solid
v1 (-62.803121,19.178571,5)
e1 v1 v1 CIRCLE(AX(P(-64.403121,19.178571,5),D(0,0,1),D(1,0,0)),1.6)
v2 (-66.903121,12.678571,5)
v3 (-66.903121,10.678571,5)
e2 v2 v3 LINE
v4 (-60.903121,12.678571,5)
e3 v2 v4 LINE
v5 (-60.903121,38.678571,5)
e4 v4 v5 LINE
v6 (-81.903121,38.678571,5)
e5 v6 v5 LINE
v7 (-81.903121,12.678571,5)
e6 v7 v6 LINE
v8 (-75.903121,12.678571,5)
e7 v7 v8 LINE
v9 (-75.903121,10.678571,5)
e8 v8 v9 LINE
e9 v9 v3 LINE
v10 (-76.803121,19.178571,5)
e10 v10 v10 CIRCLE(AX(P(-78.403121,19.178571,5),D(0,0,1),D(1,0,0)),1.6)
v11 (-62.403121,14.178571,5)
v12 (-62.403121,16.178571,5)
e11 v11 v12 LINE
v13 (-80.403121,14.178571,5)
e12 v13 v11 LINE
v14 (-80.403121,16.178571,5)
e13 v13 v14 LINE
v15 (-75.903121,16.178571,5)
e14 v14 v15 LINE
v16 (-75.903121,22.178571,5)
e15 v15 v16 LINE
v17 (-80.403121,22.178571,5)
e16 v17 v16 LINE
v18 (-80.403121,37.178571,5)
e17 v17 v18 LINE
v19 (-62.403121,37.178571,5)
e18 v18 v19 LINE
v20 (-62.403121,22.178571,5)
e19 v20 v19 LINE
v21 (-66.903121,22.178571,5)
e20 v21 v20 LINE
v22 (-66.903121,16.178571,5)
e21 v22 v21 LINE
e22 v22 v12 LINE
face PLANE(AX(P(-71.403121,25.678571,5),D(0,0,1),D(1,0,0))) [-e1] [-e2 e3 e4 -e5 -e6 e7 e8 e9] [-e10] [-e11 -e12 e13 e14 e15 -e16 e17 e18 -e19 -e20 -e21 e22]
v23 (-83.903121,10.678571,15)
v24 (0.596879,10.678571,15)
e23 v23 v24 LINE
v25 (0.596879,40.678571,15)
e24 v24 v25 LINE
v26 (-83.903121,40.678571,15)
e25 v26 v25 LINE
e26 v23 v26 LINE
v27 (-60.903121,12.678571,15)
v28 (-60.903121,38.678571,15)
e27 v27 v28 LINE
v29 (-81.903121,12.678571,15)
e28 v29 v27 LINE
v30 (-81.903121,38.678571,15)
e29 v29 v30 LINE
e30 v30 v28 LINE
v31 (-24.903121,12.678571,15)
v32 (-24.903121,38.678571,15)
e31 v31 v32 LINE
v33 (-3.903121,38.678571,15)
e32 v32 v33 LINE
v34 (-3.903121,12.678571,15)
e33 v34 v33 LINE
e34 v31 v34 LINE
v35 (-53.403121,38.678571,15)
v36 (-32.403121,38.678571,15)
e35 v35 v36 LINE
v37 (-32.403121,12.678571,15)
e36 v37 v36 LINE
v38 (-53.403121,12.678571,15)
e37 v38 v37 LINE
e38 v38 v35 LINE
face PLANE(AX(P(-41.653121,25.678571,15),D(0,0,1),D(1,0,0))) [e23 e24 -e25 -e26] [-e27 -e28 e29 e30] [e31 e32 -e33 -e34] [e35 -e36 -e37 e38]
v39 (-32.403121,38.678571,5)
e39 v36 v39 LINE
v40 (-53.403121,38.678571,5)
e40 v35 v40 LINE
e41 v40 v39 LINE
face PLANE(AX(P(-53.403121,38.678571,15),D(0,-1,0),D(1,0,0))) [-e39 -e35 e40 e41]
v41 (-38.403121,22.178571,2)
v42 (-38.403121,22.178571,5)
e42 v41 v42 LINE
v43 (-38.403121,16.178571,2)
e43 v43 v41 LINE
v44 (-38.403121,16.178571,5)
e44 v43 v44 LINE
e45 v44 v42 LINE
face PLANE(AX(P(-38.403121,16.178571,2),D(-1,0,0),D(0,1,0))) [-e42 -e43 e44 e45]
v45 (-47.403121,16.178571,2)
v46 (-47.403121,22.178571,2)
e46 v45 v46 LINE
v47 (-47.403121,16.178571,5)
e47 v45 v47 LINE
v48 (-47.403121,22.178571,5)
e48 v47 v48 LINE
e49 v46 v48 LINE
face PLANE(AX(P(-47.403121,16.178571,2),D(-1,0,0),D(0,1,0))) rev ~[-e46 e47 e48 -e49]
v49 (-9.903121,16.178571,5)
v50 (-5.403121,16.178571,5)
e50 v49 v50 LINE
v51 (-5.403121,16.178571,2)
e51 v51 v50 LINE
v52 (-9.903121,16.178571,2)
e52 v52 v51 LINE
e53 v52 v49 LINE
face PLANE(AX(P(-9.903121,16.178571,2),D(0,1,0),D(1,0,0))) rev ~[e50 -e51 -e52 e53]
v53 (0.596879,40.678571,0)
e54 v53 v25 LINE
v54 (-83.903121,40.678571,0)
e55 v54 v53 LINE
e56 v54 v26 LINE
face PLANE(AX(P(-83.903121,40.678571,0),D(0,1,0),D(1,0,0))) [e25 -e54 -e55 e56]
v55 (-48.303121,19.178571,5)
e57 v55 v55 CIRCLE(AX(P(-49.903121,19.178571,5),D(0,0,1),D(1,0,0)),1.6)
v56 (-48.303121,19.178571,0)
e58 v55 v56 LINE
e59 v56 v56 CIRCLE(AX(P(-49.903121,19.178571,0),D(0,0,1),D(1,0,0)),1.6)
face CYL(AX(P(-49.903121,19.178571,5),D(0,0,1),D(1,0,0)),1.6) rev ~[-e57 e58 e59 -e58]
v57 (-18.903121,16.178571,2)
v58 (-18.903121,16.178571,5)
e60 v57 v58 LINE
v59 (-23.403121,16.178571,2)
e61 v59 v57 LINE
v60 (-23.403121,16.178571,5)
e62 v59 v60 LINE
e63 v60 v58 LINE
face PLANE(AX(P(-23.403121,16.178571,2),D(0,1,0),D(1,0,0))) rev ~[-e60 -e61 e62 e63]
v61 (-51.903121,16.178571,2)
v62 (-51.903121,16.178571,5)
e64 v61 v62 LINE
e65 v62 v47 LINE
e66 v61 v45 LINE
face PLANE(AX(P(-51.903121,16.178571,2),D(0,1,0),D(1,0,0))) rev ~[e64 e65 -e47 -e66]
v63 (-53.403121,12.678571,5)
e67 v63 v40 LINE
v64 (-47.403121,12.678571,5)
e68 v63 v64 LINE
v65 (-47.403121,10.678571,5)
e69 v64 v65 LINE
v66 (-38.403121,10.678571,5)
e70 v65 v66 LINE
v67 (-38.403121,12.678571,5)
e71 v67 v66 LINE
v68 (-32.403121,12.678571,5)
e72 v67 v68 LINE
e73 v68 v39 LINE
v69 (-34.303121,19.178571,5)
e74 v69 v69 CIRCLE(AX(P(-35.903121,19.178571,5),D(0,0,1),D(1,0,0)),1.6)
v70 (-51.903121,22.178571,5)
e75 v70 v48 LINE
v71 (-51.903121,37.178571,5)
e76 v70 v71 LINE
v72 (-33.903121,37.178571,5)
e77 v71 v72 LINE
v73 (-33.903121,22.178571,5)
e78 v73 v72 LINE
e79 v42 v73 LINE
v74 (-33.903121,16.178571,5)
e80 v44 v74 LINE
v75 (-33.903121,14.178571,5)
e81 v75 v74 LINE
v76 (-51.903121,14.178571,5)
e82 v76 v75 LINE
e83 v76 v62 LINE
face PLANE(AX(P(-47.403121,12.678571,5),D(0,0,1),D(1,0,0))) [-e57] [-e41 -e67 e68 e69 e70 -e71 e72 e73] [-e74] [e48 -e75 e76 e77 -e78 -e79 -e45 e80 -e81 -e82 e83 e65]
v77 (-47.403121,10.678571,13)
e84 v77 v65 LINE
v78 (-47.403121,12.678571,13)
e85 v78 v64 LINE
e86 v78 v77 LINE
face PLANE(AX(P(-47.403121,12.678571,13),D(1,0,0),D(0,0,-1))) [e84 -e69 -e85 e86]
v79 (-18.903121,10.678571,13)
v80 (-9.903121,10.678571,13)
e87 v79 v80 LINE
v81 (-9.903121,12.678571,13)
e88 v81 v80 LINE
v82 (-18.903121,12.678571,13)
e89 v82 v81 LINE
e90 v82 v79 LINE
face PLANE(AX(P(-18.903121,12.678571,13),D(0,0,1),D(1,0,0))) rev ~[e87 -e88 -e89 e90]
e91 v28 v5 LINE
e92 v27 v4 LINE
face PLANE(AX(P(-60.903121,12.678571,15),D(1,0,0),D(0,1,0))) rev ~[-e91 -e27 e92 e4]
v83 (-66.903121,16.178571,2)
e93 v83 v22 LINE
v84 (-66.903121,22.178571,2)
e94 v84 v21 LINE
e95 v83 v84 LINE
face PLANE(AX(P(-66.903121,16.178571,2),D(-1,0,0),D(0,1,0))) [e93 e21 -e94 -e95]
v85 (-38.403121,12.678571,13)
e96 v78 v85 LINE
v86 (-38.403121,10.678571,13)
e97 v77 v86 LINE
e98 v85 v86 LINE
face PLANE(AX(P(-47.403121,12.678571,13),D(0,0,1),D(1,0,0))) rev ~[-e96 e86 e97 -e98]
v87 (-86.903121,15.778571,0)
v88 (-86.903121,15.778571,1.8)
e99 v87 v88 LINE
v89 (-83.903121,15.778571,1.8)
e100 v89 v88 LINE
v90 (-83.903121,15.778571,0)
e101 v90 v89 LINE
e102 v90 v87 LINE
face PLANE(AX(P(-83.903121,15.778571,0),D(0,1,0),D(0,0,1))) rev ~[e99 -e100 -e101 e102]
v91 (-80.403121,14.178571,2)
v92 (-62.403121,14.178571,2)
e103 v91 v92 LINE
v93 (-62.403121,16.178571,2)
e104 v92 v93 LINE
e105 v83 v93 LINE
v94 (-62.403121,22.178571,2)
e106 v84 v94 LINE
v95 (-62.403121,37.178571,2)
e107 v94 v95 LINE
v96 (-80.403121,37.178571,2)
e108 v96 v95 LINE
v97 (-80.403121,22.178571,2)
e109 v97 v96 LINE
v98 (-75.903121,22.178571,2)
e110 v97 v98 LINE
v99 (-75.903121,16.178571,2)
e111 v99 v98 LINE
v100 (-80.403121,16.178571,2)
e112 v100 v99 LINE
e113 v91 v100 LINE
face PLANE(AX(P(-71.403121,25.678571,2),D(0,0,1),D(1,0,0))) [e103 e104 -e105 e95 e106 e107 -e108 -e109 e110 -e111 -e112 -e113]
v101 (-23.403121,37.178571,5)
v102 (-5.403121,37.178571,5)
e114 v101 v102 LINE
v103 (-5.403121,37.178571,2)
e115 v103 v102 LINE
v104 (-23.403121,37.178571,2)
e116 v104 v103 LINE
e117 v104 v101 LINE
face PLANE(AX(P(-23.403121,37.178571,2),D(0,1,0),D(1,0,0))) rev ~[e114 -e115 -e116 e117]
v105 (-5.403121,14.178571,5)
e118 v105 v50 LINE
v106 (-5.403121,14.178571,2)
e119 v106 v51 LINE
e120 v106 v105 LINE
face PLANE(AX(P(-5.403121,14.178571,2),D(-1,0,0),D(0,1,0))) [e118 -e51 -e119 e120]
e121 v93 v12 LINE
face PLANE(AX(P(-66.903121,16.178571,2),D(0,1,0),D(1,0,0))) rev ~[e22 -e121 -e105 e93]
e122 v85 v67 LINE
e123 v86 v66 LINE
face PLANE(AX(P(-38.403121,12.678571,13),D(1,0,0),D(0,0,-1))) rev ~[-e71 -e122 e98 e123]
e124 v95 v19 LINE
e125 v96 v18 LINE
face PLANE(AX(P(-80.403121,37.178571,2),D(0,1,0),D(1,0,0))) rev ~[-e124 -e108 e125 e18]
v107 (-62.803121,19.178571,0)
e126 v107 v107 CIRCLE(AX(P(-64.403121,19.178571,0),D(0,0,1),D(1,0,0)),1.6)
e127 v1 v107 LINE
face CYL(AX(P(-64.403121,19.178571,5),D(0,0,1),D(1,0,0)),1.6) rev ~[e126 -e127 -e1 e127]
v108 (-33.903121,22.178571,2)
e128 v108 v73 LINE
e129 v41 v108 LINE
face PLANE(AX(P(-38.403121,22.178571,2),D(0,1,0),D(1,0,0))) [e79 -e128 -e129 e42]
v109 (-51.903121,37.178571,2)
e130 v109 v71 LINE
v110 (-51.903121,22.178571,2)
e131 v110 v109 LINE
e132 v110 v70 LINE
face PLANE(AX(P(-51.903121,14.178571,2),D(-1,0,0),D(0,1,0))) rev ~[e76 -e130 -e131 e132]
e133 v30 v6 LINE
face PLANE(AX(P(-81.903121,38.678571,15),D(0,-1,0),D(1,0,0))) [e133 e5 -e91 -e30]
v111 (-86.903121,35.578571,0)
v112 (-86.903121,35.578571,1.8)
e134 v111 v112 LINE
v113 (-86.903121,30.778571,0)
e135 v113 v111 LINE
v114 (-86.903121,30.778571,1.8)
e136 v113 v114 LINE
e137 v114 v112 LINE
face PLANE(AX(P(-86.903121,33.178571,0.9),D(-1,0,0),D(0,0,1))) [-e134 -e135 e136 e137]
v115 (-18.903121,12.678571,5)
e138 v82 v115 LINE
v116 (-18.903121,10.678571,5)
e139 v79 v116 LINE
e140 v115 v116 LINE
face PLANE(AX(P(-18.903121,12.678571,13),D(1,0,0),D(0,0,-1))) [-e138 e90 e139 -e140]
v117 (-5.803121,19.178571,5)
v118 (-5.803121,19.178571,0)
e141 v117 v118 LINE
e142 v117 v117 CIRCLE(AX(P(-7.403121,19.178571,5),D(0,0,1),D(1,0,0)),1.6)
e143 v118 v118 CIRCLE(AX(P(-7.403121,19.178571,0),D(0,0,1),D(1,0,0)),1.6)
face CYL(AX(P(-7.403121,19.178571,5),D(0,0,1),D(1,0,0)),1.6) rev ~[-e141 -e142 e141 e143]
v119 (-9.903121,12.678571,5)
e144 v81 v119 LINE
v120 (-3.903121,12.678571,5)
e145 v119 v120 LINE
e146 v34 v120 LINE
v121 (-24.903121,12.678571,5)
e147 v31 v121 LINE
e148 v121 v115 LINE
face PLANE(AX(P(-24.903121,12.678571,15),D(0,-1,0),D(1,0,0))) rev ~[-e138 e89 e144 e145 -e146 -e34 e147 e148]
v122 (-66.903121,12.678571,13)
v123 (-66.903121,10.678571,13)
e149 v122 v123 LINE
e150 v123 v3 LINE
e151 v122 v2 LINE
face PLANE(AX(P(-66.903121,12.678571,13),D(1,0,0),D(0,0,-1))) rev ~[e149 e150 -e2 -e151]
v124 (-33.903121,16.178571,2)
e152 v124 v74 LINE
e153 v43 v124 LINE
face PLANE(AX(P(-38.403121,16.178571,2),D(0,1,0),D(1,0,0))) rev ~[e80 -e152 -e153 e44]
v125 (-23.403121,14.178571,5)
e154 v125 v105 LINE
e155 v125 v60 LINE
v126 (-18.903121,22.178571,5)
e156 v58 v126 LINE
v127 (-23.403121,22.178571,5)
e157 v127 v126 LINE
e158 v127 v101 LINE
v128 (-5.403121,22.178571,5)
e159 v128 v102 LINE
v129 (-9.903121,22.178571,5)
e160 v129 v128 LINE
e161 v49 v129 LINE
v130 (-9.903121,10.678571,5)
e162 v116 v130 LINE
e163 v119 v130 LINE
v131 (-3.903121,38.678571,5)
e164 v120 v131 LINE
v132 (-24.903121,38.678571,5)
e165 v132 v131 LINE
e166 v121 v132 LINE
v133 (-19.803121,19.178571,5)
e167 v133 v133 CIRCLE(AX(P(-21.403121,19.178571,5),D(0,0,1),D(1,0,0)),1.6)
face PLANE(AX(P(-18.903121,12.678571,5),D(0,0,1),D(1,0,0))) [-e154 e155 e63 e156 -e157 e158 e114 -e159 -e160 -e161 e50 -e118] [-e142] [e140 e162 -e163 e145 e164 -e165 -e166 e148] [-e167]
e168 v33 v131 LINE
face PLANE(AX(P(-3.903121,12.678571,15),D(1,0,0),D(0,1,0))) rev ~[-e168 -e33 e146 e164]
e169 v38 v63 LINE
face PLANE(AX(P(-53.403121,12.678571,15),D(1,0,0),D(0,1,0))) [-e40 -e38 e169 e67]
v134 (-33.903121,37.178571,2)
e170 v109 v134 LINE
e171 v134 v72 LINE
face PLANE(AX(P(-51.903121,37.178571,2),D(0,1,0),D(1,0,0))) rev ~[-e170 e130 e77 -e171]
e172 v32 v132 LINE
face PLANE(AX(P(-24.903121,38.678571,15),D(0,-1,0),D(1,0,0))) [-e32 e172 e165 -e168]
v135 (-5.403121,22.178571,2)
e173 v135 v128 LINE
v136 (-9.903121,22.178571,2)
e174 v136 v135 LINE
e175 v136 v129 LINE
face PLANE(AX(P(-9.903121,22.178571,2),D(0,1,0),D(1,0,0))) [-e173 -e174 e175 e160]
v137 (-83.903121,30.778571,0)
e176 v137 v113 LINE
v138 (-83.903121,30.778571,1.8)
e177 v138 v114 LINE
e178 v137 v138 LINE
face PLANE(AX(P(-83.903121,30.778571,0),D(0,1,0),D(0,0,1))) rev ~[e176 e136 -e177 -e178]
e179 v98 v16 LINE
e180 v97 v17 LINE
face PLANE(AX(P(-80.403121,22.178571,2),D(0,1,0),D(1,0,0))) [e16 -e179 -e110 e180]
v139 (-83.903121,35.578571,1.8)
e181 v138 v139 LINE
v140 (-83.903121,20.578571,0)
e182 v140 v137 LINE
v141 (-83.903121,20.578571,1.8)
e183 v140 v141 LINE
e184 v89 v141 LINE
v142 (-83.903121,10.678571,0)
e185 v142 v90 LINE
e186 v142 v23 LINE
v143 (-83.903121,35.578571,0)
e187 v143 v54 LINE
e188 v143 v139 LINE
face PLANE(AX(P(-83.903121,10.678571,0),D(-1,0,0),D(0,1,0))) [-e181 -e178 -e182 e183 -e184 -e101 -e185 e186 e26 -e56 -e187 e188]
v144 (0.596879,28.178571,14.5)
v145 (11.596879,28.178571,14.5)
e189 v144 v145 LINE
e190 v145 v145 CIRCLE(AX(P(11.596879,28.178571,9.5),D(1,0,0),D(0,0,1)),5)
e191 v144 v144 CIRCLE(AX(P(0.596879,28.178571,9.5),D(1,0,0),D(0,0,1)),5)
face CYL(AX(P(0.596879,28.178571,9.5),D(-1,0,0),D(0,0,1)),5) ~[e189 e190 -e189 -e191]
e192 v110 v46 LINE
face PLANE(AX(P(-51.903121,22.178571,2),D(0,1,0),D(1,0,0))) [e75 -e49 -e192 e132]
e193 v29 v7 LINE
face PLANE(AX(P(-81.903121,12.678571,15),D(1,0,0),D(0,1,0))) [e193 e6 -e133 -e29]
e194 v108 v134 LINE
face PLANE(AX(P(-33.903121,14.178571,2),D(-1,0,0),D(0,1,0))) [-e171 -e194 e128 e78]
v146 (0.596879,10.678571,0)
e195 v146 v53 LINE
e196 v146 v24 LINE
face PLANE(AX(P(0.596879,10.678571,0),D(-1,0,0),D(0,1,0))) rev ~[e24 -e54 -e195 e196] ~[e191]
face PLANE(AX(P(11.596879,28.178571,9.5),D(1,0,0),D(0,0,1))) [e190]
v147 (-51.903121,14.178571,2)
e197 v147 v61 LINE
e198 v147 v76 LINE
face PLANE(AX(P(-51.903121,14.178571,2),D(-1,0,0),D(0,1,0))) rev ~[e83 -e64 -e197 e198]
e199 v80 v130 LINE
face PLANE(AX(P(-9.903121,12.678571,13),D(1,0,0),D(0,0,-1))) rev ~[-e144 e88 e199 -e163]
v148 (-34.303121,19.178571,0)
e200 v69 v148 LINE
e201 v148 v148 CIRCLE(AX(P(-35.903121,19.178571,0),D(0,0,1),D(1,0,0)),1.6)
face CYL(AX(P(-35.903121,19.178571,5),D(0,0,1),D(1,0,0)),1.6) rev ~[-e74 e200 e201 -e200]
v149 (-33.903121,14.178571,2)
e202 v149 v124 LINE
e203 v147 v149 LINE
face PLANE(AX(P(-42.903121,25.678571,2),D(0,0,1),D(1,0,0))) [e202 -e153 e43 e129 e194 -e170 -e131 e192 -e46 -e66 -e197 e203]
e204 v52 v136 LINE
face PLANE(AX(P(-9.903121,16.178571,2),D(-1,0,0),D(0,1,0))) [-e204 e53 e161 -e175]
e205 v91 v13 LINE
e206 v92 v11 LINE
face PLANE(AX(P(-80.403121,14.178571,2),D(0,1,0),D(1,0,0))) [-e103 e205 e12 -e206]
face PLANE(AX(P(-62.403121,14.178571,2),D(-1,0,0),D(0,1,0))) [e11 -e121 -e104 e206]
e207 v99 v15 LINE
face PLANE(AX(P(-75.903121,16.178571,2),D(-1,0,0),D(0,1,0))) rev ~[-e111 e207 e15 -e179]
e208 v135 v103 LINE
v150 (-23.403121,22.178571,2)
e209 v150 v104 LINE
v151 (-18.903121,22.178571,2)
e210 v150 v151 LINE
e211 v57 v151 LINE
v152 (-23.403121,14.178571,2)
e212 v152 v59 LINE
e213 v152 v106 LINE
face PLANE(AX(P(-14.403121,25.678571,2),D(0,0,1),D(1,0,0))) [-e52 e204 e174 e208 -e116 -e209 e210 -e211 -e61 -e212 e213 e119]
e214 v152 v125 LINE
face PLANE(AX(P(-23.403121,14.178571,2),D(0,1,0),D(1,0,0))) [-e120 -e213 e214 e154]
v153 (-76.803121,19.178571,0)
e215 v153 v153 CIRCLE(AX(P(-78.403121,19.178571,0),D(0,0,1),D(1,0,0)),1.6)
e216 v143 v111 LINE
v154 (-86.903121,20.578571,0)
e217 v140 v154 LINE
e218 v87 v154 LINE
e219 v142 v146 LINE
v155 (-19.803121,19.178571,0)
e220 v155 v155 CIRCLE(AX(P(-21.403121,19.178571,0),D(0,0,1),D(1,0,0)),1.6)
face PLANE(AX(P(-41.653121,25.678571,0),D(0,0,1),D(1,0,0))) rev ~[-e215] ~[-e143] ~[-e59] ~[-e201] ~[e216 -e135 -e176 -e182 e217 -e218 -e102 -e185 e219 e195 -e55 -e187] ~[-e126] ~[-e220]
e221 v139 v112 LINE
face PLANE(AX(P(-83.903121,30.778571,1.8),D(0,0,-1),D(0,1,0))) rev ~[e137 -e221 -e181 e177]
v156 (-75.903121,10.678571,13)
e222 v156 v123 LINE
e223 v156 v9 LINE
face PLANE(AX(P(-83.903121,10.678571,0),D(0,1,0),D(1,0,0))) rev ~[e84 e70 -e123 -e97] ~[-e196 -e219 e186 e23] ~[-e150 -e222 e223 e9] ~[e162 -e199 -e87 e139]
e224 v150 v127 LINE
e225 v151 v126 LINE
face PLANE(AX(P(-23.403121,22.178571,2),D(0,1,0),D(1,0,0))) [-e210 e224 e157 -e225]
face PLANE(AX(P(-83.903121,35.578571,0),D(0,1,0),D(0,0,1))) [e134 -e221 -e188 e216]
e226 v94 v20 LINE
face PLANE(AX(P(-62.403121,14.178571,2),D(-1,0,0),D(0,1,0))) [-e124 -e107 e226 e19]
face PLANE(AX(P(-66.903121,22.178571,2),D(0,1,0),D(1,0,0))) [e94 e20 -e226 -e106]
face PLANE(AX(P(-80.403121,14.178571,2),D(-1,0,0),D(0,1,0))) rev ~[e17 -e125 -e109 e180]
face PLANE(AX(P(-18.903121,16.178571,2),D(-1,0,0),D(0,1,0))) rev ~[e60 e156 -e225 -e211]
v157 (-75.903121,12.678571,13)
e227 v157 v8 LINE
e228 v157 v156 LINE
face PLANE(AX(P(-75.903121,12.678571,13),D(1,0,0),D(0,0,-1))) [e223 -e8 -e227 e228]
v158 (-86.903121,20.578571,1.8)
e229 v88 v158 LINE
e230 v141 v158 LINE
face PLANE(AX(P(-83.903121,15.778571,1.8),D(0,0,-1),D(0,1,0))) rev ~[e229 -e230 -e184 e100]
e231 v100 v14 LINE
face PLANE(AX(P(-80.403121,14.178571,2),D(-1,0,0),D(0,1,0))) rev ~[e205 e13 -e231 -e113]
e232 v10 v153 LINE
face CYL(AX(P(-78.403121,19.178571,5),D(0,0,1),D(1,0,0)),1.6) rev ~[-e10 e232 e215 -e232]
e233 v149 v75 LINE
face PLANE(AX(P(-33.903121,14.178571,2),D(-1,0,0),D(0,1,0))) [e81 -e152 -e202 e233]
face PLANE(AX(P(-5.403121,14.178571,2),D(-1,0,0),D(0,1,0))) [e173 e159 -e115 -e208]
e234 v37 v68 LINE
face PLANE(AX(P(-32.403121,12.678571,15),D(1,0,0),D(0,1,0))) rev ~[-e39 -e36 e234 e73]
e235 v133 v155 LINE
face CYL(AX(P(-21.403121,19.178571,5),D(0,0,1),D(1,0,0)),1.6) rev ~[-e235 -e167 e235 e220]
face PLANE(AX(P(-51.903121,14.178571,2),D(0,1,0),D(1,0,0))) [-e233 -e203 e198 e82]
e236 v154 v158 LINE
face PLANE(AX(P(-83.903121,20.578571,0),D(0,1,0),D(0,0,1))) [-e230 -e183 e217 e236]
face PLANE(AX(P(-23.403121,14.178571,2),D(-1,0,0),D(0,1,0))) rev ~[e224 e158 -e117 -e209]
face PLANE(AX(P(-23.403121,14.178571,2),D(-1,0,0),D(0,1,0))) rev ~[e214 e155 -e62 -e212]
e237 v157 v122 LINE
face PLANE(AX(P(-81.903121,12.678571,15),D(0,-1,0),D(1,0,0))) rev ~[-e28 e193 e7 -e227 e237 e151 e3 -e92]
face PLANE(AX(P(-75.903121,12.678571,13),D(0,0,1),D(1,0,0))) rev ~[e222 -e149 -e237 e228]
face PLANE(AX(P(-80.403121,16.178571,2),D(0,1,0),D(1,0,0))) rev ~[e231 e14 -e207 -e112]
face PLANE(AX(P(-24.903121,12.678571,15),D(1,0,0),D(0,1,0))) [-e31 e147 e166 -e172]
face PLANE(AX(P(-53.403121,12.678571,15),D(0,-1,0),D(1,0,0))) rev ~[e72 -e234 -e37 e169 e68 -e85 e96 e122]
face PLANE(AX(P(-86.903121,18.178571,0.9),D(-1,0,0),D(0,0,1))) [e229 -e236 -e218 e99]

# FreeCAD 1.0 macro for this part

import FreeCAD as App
import Part
import Sketcher

doc = App.newDocument("Part")
body = doc.addObject("PartDesign::Body", "Body")

sketch1 = body.newObject("Sketcher::SketchObject", "Sketch")
sketch1.AttachmentSupport = (doc.getObject("XY_Plane"), [""])
sketch1.MapMode = "FlatFace"
sketch1.addGeometry([
    Part.LineSegment(App.Vector(-83.903121, 40.678571, 0), App.Vector(-83.903121, 10.678571, 0)),
    Part.LineSegment(App.Vector(-83.903121, 10.678571, 0), App.Vector(0.596879, 10.678571, 0)),
    Part.LineSegment(App.Vector(0.596879, 10.678571, 0), App.Vector(0.596879, 40.678571, 0)),
    Part.LineSegment(App.Vector(0.596879, 40.678571, 0), App.Vector(-83.903121, 40.678571, 0)),
], False)
sketch1.addConstraint([
    Sketcher.Constraint("Coincident", 0, 2, 1, 1),
    Sketcher.Constraint("Coincident", 1, 2, 2, 1),
    Sketcher.Constraint("Coincident", 2, 2, 3, 1),
    Sketcher.Constraint("Coincident", 3, 2, 0, 1),
    Sketcher.Constraint("Vertical", 0),
    Sketcher.Constraint("Horizontal", 1),
    Sketcher.Constraint("Vertical", 2),
    Sketcher.Constraint("Horizontal", 3),
    Sketcher.Constraint("DistanceY", 0, 2, 0, 1, 30.0),
    Sketcher.Constraint("DistanceX", 1, 1, 1, 2, 84.5),
    Sketcher.Constraint("DistanceX", 0, 2, -1, 1, 83.903121),
    Sketcher.Constraint("DistanceY", -1, 1, 0, 2, 10.678571),
])
pad1 = body.newObject("PartDesign::Pad", "Pad")
pad1.Profile = sketch1
pad1.Length = 15

sketch2 = body.newObject("Sketcher::SketchObject", "Sketch001")
sketch2.AttachmentSupport = (doc.getObject("XY_Plane"), [""])
sketch2.MapMode = "FlatFace"
sketch2.AttachmentOffset = App.Placement(App.Vector(0, 0, 15), App.Rotation())
sketch2.addGeometry([
    Part.LineSegment(App.Vector(-81.903121, 38.678571, 0), App.Vector(-81.903121, 12.678571, 0)),
    Part.LineSegment(App.Vector(-81.903121, 12.678571, 0), App.Vector(-60.903121, 12.678571, 0)),
    Part.LineSegment(App.Vector(-60.903121, 12.678571, 0), App.Vector(-60.903121, 38.678571, 0)),
    Part.LineSegment(App.Vector(-60.903121, 38.678571, 0), App.Vector(-81.903121, 38.678571, 0)),
    Part.LineSegment(App.Vector(-53.403121, 38.678571, 0), App.Vector(-53.403121, 12.678571, 0)),
    Part.LineSegment(App.Vector(-53.403121, 12.678571, 0), App.Vector(-32.403121, 12.678571, 0)),
    Part.LineSegment(App.Vector(-32.403121, 12.678571, 0), App.Vector(-32.403121, 38.678571, 0)),
    Part.LineSegment(App.Vector(-32.403121, 38.678571, 0), App.Vector(-53.403121, 38.678571, 0)),
    Part.LineSegment(App.Vector(-24.903121, 38.678571, 0), App.Vector(-24.903121, 12.678571, 0)),
    Part.LineSegment(App.Vector(-24.903121, 12.678571, 0), App.Vector(-3.903121, 12.678571, 0)),
    Part.LineSegment(App.Vector(-3.903121, 12.678571, 0), App.Vector(-3.903121, 38.678571, 0)),
    Part.LineSegment(App.Vector(-3.903121, 38.678571, 0), App.Vector(-24.903121, 38.678571, 0)),
], False)
sketch2.addConstraint([
    Sketcher.Constraint("Coincident", 0, 2, 1, 1),
    Sketcher.Constraint("Coincident", 1, 2, 2, 1),
    Sketcher.Constraint("Coincident", 2, 2, 3, 1),
    Sketcher.Constraint("Coincident", 3, 2, 0, 1),
    Sketcher.Constraint("Coincident", 4, 2, 5, 1),
    Sketcher.Constraint("Coincident", 5, 2, 6, 1),
    Sketcher.Constraint("Coincident", 6, 2, 7, 1),
    Sketcher.Constraint("Coincident", 7, 2, 4, 1),
    Sketcher.Constraint("Coincident", 8, 2, 9, 1),
    Sketcher.Constraint("Coincident", 9, 2, 10, 1),
    Sketcher.Constraint("Coincident", 10, 2, 11, 1),
    Sketcher.Constraint("Coincident", 11, 2, 8, 1),
    Sketcher.Constraint("Vertical", 0),
    Sketcher.Constraint("Horizontal", 1),
    Sketcher.Constraint("Vertical", 2),
    Sketcher.Constraint("Horizontal", 3),
    Sketcher.Constraint("Vertical", 4),
    Sketcher.Constraint("Horizontal", 5),
    Sketcher.Constraint("Vertical", 6),
    Sketcher.Constraint("Horizontal", 7),
    Sketcher.Constraint("Vertical", 8),
    Sketcher.Constraint("Horizontal", 9),
    Sketcher.Constraint("Vertical", 10),
    Sketcher.Constraint("Horizontal", 11),
    Sketcher.Constraint("Horizontal", 1, 2, 4, 2),
    Sketcher.Constraint("Horizontal", 3, 2, 6, 2),
    Sketcher.Constraint("Horizontal", 5, 2, 8, 2),
    Sketcher.Constraint("Horizontal", 7, 2, 10, 2),
    Sketcher.Constraint("Equal", 3, 5),
    Sketcher.Constraint("Equal", 7, 9),
    Sketcher.Constraint("DistanceX", 1, 1, 1, 2, 21.0),
    Sketcher.Constraint("DistanceY", 0, 2, 0, 1, 26.0),
    Sketcher.Constraint("DistanceX", 1, 2, 8, 2, 36.0),
    Sketcher.Constraint("DistanceX", 1, 2, 4, 2, 7.5),
    Sketcher.Constraint("DistanceX", 0, 2, -1, 1, 81.903121),
    Sketcher.Constraint("DistanceY", -1, 1, 0, 2, 12.678571),
])
pocket1 = body.newObject("PartDesign::Pocket", "Pocket")
pocket1.Profile = sketch2
pocket1.Length = 13

sketch3 = body.newObject("Sketcher::SketchObject", "Sketch002")
sketch3.AttachmentSupport = (doc.getObject("XY_Plane"), [""])
sketch3.MapMode = "FlatFace"
sketch3.AttachmentOffset = App.Placement(App.Vector(0, 0, 2), App.Rotation())
sketch3.addGeometry([
    Part.LineSegment(App.Vector(-81.903121, 38.678571, 0), App.Vector(-81.903121, 12.678571, 0)),
    Part.LineSegment(App.Vector(-81.903121, 12.678571, 0), App.Vector(-60.903121, 12.678571, 0)),
    Part.LineSegment(App.Vector(-60.903121, 12.678571, 0), App.Vector(-60.903121, 38.678571, 0)),
    Part.LineSegment(App.Vector(-60.903121, 38.678571, 0), App.Vector(-81.903121, 38.678571, 0)),
    Part.LineSegment(App.Vector(-62.403121, 14.178571, 0), App.Vector(-80.403121, 14.178571, 0)),
    Part.LineSegment(App.Vector(-80.403121, 14.178571, 0), App.Vector(-80.403121, 37.178571, 0)),
    Part.LineSegment(App.Vector(-80.403121, 37.178571, 0), App.Vector(-62.403121, 37.178571, 0)),
    Part.LineSegment(App.Vector(-62.403121, 37.178571, 0), App.Vector(-62.403121, 14.178571, 0)),
    Part.LineSegment(App.Vector(-53.403121, 38.678571, 0), App.Vector(-53.403121, 12.678571, 0)),
    Part.LineSegment(App.Vector(-53.403121, 12.678571, 0), App.Vector(-32.403121, 12.678571, 0)),
    Part.LineSegment(App.Vector(-32.403121, 12.678571, 0), App.Vector(-32.403121, 38.678571, 0)),
    Part.LineSegment(App.Vector(-32.403121, 38.678571, 0), App.Vector(-53.403121, 38.678571, 0)),
    Part.LineSegment(App.Vector(-33.903121, 14.178571, 0), App.Vector(-51.903121, 14.178571, 0)),
    Part.LineSegment(App.Vector(-51.903121, 14.178571, 0), App.Vector(-51.903121, 37.178571, 0)),
    Part.LineSegment(App.Vector(-51.903121, 37.178571, 0), App.Vector(-33.903121, 37.178571, 0)),
    Part.LineSegment(App.Vector(-33.903121, 37.178571, 0), App.Vector(-33.903121, 14.178571, 0)),
    Part.LineSegment(App.Vector(-24.903121, 38.678571, 0), App.Vector(-24.903121, 12.678571, 0)),
    Part.LineSegment(App.Vector(-24.903121, 12.678571, 0), App.Vector(-3.903121, 12.678571, 0)),
    Part.LineSegment(App.Vector(-3.903121, 12.678571, 0), App.Vector(-3.903121, 38.678571, 0)),
    Part.LineSegment(App.Vector(-3.903121, 38.678571, 0), App.Vector(-24.903121, 38.678571, 0)),
    Part.LineSegment(App.Vector(-5.403121, 14.178571, 0), App.Vector(-23.403121, 14.178571, 0)),
    Part.LineSegment(App.Vector(-23.403121, 14.178571, 0), App.Vector(-23.403121, 37.178571, 0)),
    Part.LineSegment(App.Vector(-23.403121, 37.178571, 0), App.Vector(-5.403121, 37.178571, 0)),
    Part.LineSegment(App.Vector(-5.403121, 37.178571, 0), App.Vector(-5.403121, 14.178571, 0)),
], False)
sketch3.addConstraint([
    Sketcher.Constraint("Coincident", 0, 2, 1, 1),
    Sketcher.Constraint("Coincident", 1, 2, 2, 1),
    Sketcher.Constraint("Coincident", 2, 2, 3, 1),
    Sketcher.Constraint("Coincident", 3, 2, 0, 1),
    Sketcher.Constraint("Coincident", 4, 2, 5, 1),
    Sketcher.Constraint("Coincident", 5, 2, 6, 1),
    Sketcher.Constraint("Coincident", 6, 2, 7, 1),
    Sketcher.Constraint("Coincident", 7, 2, 4, 1),
    Sketcher.Constraint("Coincident", 8, 2, 9, 1),
    Sketcher.Constraint("Coincident", 9, 2, 10, 1),
    Sketcher.Constraint("Coincident", 10, 2, 11, 1),
    Sketcher.Constraint("Coincident", 11, 2, 8, 1),
    Sketcher.Constraint("Coincident", 12, 2, 13, 1),
    Sketcher.Constraint("Coincident", 13, 2, 14, 1),
    Sketcher.Constraint("Coincident", 14, 2, 15, 1),
    Sketcher.Constraint("Coincident", 15, 2, 12, 1),
    Sketcher.Constraint("Coincident", 16, 2, 17, 1),
    Sketcher.Constraint("Coincident", 17, 2, 18, 1),
    Sketcher.Constraint("Coincident", 18, 2, 19, 1),
    Sketcher.Constraint("Coincident", 19, 2, 16, 1),
    Sketcher.Constraint("Coincident", 20, 2, 21, 1),
    Sketcher.Constraint("Coincident", 21, 2, 22, 1),
    Sketcher.Constraint("Coincident", 22, 2, 23, 1),
    Sketcher.Constraint("Coincident", 23, 2, 20, 1),
    Sketcher.Constraint("Vertical", 0),
    Sketcher.Constraint("Horizontal", 1),
    Sketcher.Constraint("Vertical", 2),
    Sketcher.Constraint("Horizontal", 3),
    Sketcher.Constraint("Horizontal", 4),
    Sketcher.Constraint("Vertical", 5),
    Sketcher.Constraint("Horizontal", 6),
    Sketcher.Constraint("Vertical", 7),
    Sketcher.Constraint("Vertical", 8),
    Sketcher.Constraint("Horizontal", 9),
    Sketcher.Constraint("Vertical", 10),
    Sketcher.Constraint("Horizontal", 11),
    Sketcher.Constraint("Horizontal", 12),
    Sketcher.Constraint("Vertical", 13),
    Sketcher.Constraint("Horizontal", 14),
    Sketcher.Constraint("Vertical", 15),
    Sketcher.Constraint("Vertical", 16),
    Sketcher.Constraint("Horizontal", 17),
    Sketcher.Constraint("Vertical", 18),
    Sketcher.Constraint("Horizontal", 19),
    Sketcher.Constraint("Horizontal", 20),
    Sketcher.Constraint("Vertical", 21),
    Sketcher.Constraint("Horizontal", 22),
    Sketcher.Constraint("Vertical", 23),
    Sketcher.Constraint("Horizontal", 1, 2, 8, 2),
    Sketcher.Constraint("Horizontal", 3, 2, 10, 2),
    Sketcher.Constraint("Horizontal", 7, 2, 12, 2),
    Sketcher.Constraint("Horizontal", 6, 2, 13, 2),
    Sketcher.Constraint("Horizontal", 9, 2, 16, 2),
    Sketcher.Constraint("Horizontal", 11, 2, 18, 2),
    Sketcher.Constraint("Horizontal", 15, 2, 20, 2),
    Sketcher.Constraint("Horizontal", 14, 2, 21, 2),
    Sketcher.Constraint("Equal", 3, 9),
    Sketcher.Constraint("Equal", 6, 12),
    Sketcher.Constraint("Equal", 11, 17),
    Sketcher.Constraint("Equal", 14, 20),
    Sketcher.Constraint("DistanceX", 1, 1, 1, 2, 21.0),
    Sketcher.Constraint("DistanceX", 4, 2, 4, 1, 18.0),
    Sketcher.Constraint("DistanceY", 0, 2, 0, 1, 26.0),
    Sketcher.Constraint("DistanceY", 5, 1, 5, 2, 23.0),
    Sketcher.Constraint("DistanceX", 7, 2, 8, 2, 9.0),
    Sketcher.Constraint("DistanceX", 1, 2, 12, 2, 9.0),
    Sketcher.Constraint("DistanceX", 15, 2, 16, 2, 9.0),
    Sketcher.Constraint("DistanceX", 9, 2, 20, 2, 9.0),
    Sketcher.Constraint("DistanceX", 0, 2, 4, 2, 1.5),
    Sketcher.Constraint("DistanceY", 0, 2, 4, 2, 1.5),
    Sketcher.Constraint("DistanceX", 0, 2, -1, 1, 81.903121),
    Sketcher.Constraint("DistanceY", -1, 1, 0, 2, 12.678571),
])
pad2 = body.newObject("PartDesign::Pad", "Pad001")
pad2.Profile = sketch3
pad2.Length = 3

sketch4 = body.newObject("Sketcher::SketchObject", "Sketch003")
sketch4.AttachmentSupport = (doc.getObject("XY_Plane"), [""])
sketch4.MapMode = "FlatFace"
sketch4.AttachmentOffset = App.Placement(App.Vector(0, 0, 2), App.Rotation())
sketch4.addGeometry([
    Part.LineSegment(App.Vector(-66.903121, 22.178571, 0), App.Vector(-66.903121, 16.178571, 0)),
    Part.LineSegment(App.Vector(-66.903121, 16.178571, 0), App.Vector(-62.403121, 16.178571, 0)),
    Part.LineSegment(App.Vector(-62.403121, 16.178571, 0), App.Vector(-62.403121, 22.178571, 0)),
    Part.LineSegment(App.Vector(-62.403121, 22.178571, 0), App.Vector(-66.903121, 22.178571, 0)),
    Part.LineSegment(App.Vector(-80.403121, 22.178571, 0), App.Vector(-80.403121, 16.178571, 0)),
    Part.LineSegment(App.Vector(-80.403121, 16.178571, 0), App.Vector(-75.903121, 16.178571, 0)),
    Part.LineSegment(App.Vector(-75.903121, 16.178571, 0), App.Vector(-75.903121, 22.178571, 0)),
    Part.LineSegment(App.Vector(-75.903121, 22.178571, 0), App.Vector(-80.403121, 22.178571, 0)),
    Part.LineSegment(App.Vector(-51.903121, 22.178571, 0), App.Vector(-51.903121, 16.178571, 0)),
    Part.LineSegment(App.Vector(-51.903121, 16.178571, 0), App.Vector(-47.403121, 16.178571, 0)),
    Part.LineSegment(App.Vector(-47.403121, 16.178571, 0), App.Vector(-47.403121, 22.178571, 0)),
    Part.LineSegment(App.Vector(-47.403121, 22.178571, 0), App.Vector(-51.903121, 22.178571, 0)),
    Part.LineSegment(App.Vector(-38.403121, 22.178571, 0), App.Vector(-38.403121, 16.178571, 0)),
    Part.LineSegment(App.Vector(-38.403121, 16.178571, 0), App.Vector(-33.903121, 16.178571, 0)),
    Part.LineSegment(App.Vector(-33.903121, 16.178571, 0), App.Vector(-33.903121, 22.178571, 0)),
    Part.LineSegment(App.Vector(-33.903121, 22.178571, 0), App.Vector(-38.403121, 22.178571, 0)),
    Part.LineSegment(App.Vector(-23.403121, 22.178571, 0), App.Vector(-23.403121, 16.178571, 0)),
    Part.LineSegment(App.Vector(-23.403121, 16.178571, 0), App.Vector(-18.903121, 16.178571, 0)),
    Part.LineSegment(App.Vector(-18.903121, 16.178571, 0), App.Vector(-18.903121, 22.178571, 0)),
    Part.LineSegment(App.Vector(-18.903121, 22.178571, 0), App.Vector(-23.403121, 22.178571, 0)),
    Part.LineSegment(App.Vector(-9.903121, 22.178571, 0), App.Vector(-9.903121, 16.178571, 0)),
    Part.LineSegment(App.Vector(-9.903121, 16.178571, 0), App.Vector(-5.403121, 16.178571, 0)),
    Part.LineSegment(App.Vector(-5.403121, 16.178571, 0), App.Vector(-5.403121, 22.178571, 0)),
    Part.LineSegment(App.Vector(-5.403121, 22.178571, 0), App.Vector(-9.903121, 22.178571, 0)),
], False)
sketch4.addConstraint([
    Sketcher.Constraint("Coincident", 0, 2, 1, 1),
    Sketcher.Constraint("Coincident", 1, 2, 2, 1),
    Sketcher.Constraint("Coincident", 2, 2, 3, 1),
    Sketcher.Constraint("Coincident", 3, 2, 0, 1),
    Sketcher.Constraint("Coincident", 4, 2, 5, 1),
    Sketcher.Constraint("Coincident", 5, 2, 6, 1),
    Sketcher.Constraint("Coincident", 6, 2, 7, 1),
    Sketcher.Constraint("Coincident", 7, 2, 4, 1),
    Sketcher.Constraint("Coincident", 8, 2, 9, 1),
    Sketcher.Constraint("Coincident", 9, 2, 10, 1),
    Sketcher.Constraint("Coincident", 10, 2, 11, 1),
    Sketcher.Constraint("Coincident", 11, 2, 8, 1),
    Sketcher.Constraint("Coincident", 12, 2, 13, 1),
    Sketcher.Constraint("Coincident", 13, 2, 14, 1),
    Sketcher.Constraint("Coincident", 14, 2, 15, 1),
    Sketcher.Constraint("Coincident", 15, 2, 12, 1),
    Sketcher.Constraint("Coincident", 16, 2, 17, 1),
    Sketcher.Constraint("Coincident", 17, 2, 18, 1),
    Sketcher.Constraint("Coincident", 18, 2, 19, 1),
    Sketcher.Constraint("Coincident", 19, 2, 16, 1),
    Sketcher.Constraint("Coincident", 20, 2, 21, 1),
    Sketcher.Constraint("Coincident", 21, 2, 22, 1),
    Sketcher.Constraint("Coincident", 22, 2, 23, 1),
    Sketcher.Constraint("Coincident", 23, 2, 20, 1),
    Sketcher.Constraint("Vertical", 0),
    Sketcher.Constraint("Horizontal", 1),
    Sketcher.Constraint("Vertical", 2),
    Sketcher.Constraint("Horizontal", 3),
    Sketcher.Constraint("Vertical", 4),
    Sketcher.Constraint("Horizontal", 5),
    Sketcher.Constraint("Vertical", 6),
    Sketcher.Constraint("Horizontal", 7),
    Sketcher.Constraint("Vertical", 8),
    Sketcher.Constraint("Horizontal", 9),
    Sketcher.Constraint("Vertical", 10),
    Sketcher.Constraint("Horizontal", 11),
    Sketcher.Constraint("Vertical", 12),
    Sketcher.Constraint("Horizontal", 13),
    Sketcher.Constraint("Vertical", 14),
    Sketcher.Constraint("Horizontal", 15),
    Sketcher.Constraint("Vertical", 16),
    Sketcher.Constraint("Horizontal", 17),
    Sketcher.Constraint("Vertical", 18),
    Sketcher.Constraint("Horizontal", 19),
    Sketcher.Constraint("Vertical", 20),
    Sketcher.Constraint("Horizontal", 21),
    Sketcher.Constraint("Vertical", 22),
    Sketcher.Constraint("Horizontal", 23),
    Sketcher.Constraint("Horizontal", 1, 2, 4, 2),
    Sketcher.Constraint("Horizontal", 3, 2, 6, 2),
    Sketcher.Constraint("Horizontal", 5, 2, 8, 2),
    Sketcher.Constraint("Horizontal", 7, 2, 10, 2),
    Sketcher.Constraint("Horizontal", 9, 2, 12, 2),
    Sketcher.Constraint("Horizontal", 11, 2, 14, 2),
    Sketcher.Constraint("Horizontal", 13, 2, 16, 2),
    Sketcher.Constraint("Horizontal", 15, 2, 18, 2),
    Sketcher.Constraint("Horizontal", 17, 2, 20, 2),
    Sketcher.Constraint("Horizontal", 19, 2, 22, 2),
    Sketcher.Constraint("Equal", 3, 5),
    Sketcher.Constraint("Equal", 7, 9),
    Sketcher.Constraint("Equal", 11, 13),
    Sketcher.Constraint("Equal", 15, 17),
    Sketcher.Constraint("Equal", 19, 21),
    Sketcher.Constraint("DistanceY", 0, 2, 0, 1, 6.0),
    Sketcher.Constraint("DistanceX", 1, 1, 1, 2, 4.5),
    Sketcher.Constraint("DistanceX", 4, 2, 1, 2, 18.0),
    Sketcher.Constraint("DistanceX", 0, 2, 8, 2, 15.0),
    Sketcher.Constraint("DistanceX", 9, 2, 12, 2, 9.0),
    Sketcher.Constraint("DistanceX", 12, 2, 16, 2, 15.0),
    Sketcher.Constraint("DistanceX", 17, 2, 20, 2, 9.0),
    Sketcher.Constraint("DistanceX", 0, 2, -1, 1, 66.903121),
    Sketcher.Constraint("DistanceY", -1, 1, 0, 2, 16.178571),
])
pad3 = body.newObject("PartDesign::Pad", "Pad002")
pad3.Profile = sketch4
pad3.Length = 3

sketch5 = body.newObject("Sketcher::SketchObject", "Sketch004")
sketch5.AttachmentSupport = (doc.getObject("XY_Plane"), [""])
sketch5.MapMode = "FlatFace"
sketch5.AttachmentOffset = App.Placement(App.Vector(0, 0, 5), App.Rotation())
sketch5.addGeometry([
    Part.Circle(App.Vector(-64.403121, 19.178571, 0), App.Vector(0, 0, 1), 1.6),
    Part.Circle(App.Vector(-78.403121, 19.178571, 0), App.Vector(0, 0, 1), 1.6),
    Part.Circle(App.Vector(-49.903121, 19.178571, 0), App.Vector(0, 0, 1), 1.6),
    Part.Circle(App.Vector(-35.903121, 19.178571, 0), App.Vector(0, 0, 1), 1.6),
    Part.Circle(App.Vector(-21.403121, 19.178571, 0), App.Vector(0, 0, 1), 1.6),
    Part.Circle(App.Vector(-7.403121, 19.178571, 0), App.Vector(0, 0, 1), 1.6),
], False)
sketch5.addConstraint([
    Sketcher.Constraint("Equal", 0, 1),
    Sketcher.Constraint("Equal", 1, 2),
    Sketcher.Constraint("Equal", 2, 3),
    Sketcher.Constraint("Equal", 3, 4),
    Sketcher.Constraint("Equal", 4, 5),
    Sketcher.Constraint("Horizontal", 0, 3, 1, 3),
    Sketcher.Constraint("Horizontal", 1, 3, 2, 3),
    Sketcher.Constraint("Horizontal", 2, 3, 3, 3),
    Sketcher.Constraint("Horizontal", 3, 3, 4, 3),
    Sketcher.Constraint("Horizontal", 4, 3, 5, 3),
    Sketcher.Constraint("Diameter", 0, 3.2),
    Sketcher.Constraint("DistanceX", 1, 3, 0, 3, 14.0),
    Sketcher.Constraint("DistanceX", 2, 3, 3, 3, 14.0),
    Sketcher.Constraint("DistanceX", 0, 3, 4, 3, 43.0),
    Sketcher.Constraint("DistanceX", 4, 3, 5, 3, 14.0),
    Sketcher.Constraint("DistanceX", 0, 3, 2, 3, 14.5),
    Sketcher.Constraint("DistanceX", 0, 3, -1, 1, 64.403121),
    Sketcher.Constraint("DistanceY", -1, 1, 0, 3, 19.178571),
])
pocket2 = body.newObject("PartDesign::Pocket", "Pocket001")
pocket2.Profile = sketch5
pocket2.Type = "ThroughAll"

sketch6 = body.newObject("Sketcher::SketchObject", "Sketch005")
sketch6.AttachmentSupport = (doc.getObject("XZ_Plane"), [""])
sketch6.MapMode = "FlatFace"
sketch6.AttachmentOffset = App.Placement(App.Vector(0, 0, -12.678571), App.Rotation())
sketch6.addGeometry([
    Part.LineSegment(App.Vector(-75.903121, 5, 0), App.Vector(-75.903121, 13, 0)),
    Part.LineSegment(App.Vector(-75.903121, 13, 0), App.Vector(-66.903121, 13, 0)),
    Part.LineSegment(App.Vector(-66.903121, 13, 0), App.Vector(-66.903121, 5, 0)),
    Part.LineSegment(App.Vector(-66.903121, 5, 0), App.Vector(-75.903121, 5, 0)),
    Part.LineSegment(App.Vector(-47.403121, 5, 0), App.Vector(-47.403121, 13, 0)),
    Part.LineSegment(App.Vector(-47.403121, 13, 0), App.Vector(-38.403121, 13, 0)),
    Part.LineSegment(App.Vector(-38.403121, 13, 0), App.Vector(-38.403121, 5, 0)),
    Part.LineSegment(App.Vector(-38.403121, 5, 0), App.Vector(-47.403121, 5, 0)),
    Part.LineSegment(App.Vector(-18.903121, 5, 0), App.Vector(-18.903121, 13, 0)),
    Part.LineSegment(App.Vector(-18.903121, 13, 0), App.Vector(-9.903121, 13, 0)),
    Part.LineSegment(App.Vector(-9.903121, 13, 0), App.Vector(-9.903121, 5, 0)),
    Part.LineSegment(App.Vector(-9.903121, 5, 0), App.Vector(-18.903121, 5, 0)),
], False)
sketch6.addConstraint([
    Sketcher.Constraint("Coincident", 0, 2, 1, 1),
    Sketcher.Constraint("Coincident", 1, 2, 2, 1),
    Sketcher.Constraint("Coincident", 2, 2, 3, 1),
    Sketcher.Constraint("Coincident", 3, 2, 0, 1),
    Sketcher.Constraint("Coincident", 4, 2, 5, 1),
    Sketcher.Constraint("Coincident", 5, 2, 6, 1),
    Sketcher.Constraint("Coincident", 6, 2, 7, 1),
    Sketcher.Constraint("Coincident", 7, 2, 4, 1),
    Sketcher.Constraint("Coincident", 8, 2, 9, 1),
    Sketcher.Constraint("Coincident", 9, 2, 10, 1),
    Sketcher.Constraint("Coincident", 10, 2, 11, 1),
    Sketcher.Constraint("Coincident", 11, 2, 8, 1),
    Sketcher.Constraint("Vertical", 0),
    Sketcher.Constraint("Horizontal", 1),
    Sketcher.Constraint("Vertical", 2),
    Sketcher.Constraint("Horizontal", 3),
    Sketcher.Constraint("Vertical", 4),
    Sketcher.Constraint("Horizontal", 5),
    Sketcher.Constraint("Vertical", 6),
    Sketcher.Constraint("Horizontal", 7),
    Sketcher.Constraint("Vertical", 8),
    Sketcher.Constraint("Horizontal", 9),
    Sketcher.Constraint("Vertical", 10),
    Sketcher.Constraint("Horizontal", 11),
    Sketcher.Constraint("Horizontal", 1, 2, 4, 2),
    Sketcher.Constraint("Horizontal", 3, 2, 6, 2),
    Sketcher.Constraint("Horizontal", 5, 2, 8, 2),
    Sketcher.Constraint("Horizontal", 7, 2, 10, 2),
    Sketcher.Constraint("Equal", 3, 5),
    Sketcher.Constraint("Equal", 7, 9),
    Sketcher.Constraint("DistanceX", 1, 1, 1, 2, 9.0),
    Sketcher.Constraint("DistanceY", 0, 1, 0, 2, 8.0),
    Sketcher.Constraint("DistanceY", -1, 1, 0, 2, 13.0),
    Sketcher.Constraint("DistanceX", 1, 2, 8, 2, 48.0),
    Sketcher.Constraint("DistanceX", 1, 2, 4, 2, 19.5),
    Sketcher.Constraint("DistanceX", 0, 2, -1, 1, 75.903121),
])
pocket3 = body.newObject("PartDesign::Pocket", "Pocket002")
pocket3.Profile = sketch6
pocket3.Type = "ThroughAll"
pocket3.Reversed = True

sketch7 = body.newObject("Sketcher::SketchObject", "Sketch006")
sketch7.AttachmentSupport = (doc.getObject("YZ_Plane"), [""])
sketch7.MapMode = "FlatFace"
sketch7.AttachmentOffset = App.Placement(App.Vector(0, 0, -83.903121), App.Rotation())
sketch7.addGeometry([
    Part.LineSegment(App.Vector(35.578571, 0, 0), App.Vector(30.778571, 0, 0)),
    Part.LineSegment(App.Vector(30.778571, 0, 0), App.Vector(30.778571, 1.8, 0)),
    Part.LineSegment(App.Vector(30.778571, 1.8, 0), App.Vector(35.578571, 1.8, 0)),
    Part.LineSegment(App.Vector(35.578571, 1.8, 0), App.Vector(35.578571, 0, 0)),
    Part.LineSegment(App.Vector(20.578571, 0, 0), App.Vector(15.778571, 0, 0)),
    Part.LineSegment(App.Vector(15.778571, 0, 0), App.Vector(15.778571, 1.8, 0)),
    Part.LineSegment(App.Vector(15.778571, 1.8, 0), App.Vector(20.578571, 1.8, 0)),
    Part.LineSegment(App.Vector(20.578571, 1.8, 0), App.Vector(20.578571, 0, 0)),
], False)
sketch7.addConstraint([
    Sketcher.Constraint("Coincident", 0, 2, 1, 1),
    Sketcher.Constraint("Coincident", 1, 2, 2, 1),
    Sketcher.Constraint("Coincident", 2, 2, 3, 1),
    Sketcher.Constraint("Coincident", 3, 2, 0, 1),
    Sketcher.Constraint("Coincident", 4, 2, 5, 1),
    Sketcher.Constraint("Coincident", 5, 2, 6, 1),
    Sketcher.Constraint("Coincident", 6, 2, 7, 1),
    Sketcher.Constraint("Coincident", 7, 2, 4, 1),
    Sketcher.Constraint("Horizontal", 0),
    Sketcher.Constraint("Vertical", 1),
    Sketcher.Constraint("Horizontal", 2),
    Sketcher.Constraint("Vertical", 3),
    Sketcher.Constraint("Horizontal", 4),
    Sketcher.Constraint("Vertical", 5),
    Sketcher.Constraint("Horizontal", 6),
    Sketcher.Constraint("Vertical", 7),
    Sketcher.Constraint("PointOnObject", 0, 2, -1),
    Sketcher.Constraint("PointOnObject", 4, 2, -1),
    Sketcher.Constraint("Horizontal", 2, 2, 5, 2),
    Sketcher.Constraint("Equal", 2, 4),
    Sketcher.Constraint("DistanceX", 0, 2, 0, 1, 4.8),
    Sketcher.Constraint("DistanceY", 1, 1, 1, 2, 1.8),
    Sketcher.Constraint("DistanceX", 4, 2, 0, 2, 15.0),
    Sketcher.Constraint("DistanceX", -1, 1, 0, 2, 30.778571),
])
pad4 = body.newObject("PartDesign::Pad", "Pad003")
pad4.Profile = sketch7
pad4.Length = 3
pad4.Reversed = True

sketch8 = body.newObject("Sketcher::SketchObject", "Sketch007")
sketch8.AttachmentSupport = (doc.getObject("YZ_Plane"), [""])
sketch8.MapMode = "FlatFace"
sketch8.AttachmentOffset = App.Placement(App.Vector(0, 0, 0.596879), App.Rotation())
sketch8.addGeometry(Part.Circle(App.Vector(28.178571, 9.5, 0), App.Vector(0, 0, 1), 5), False)
sketch8.addConstraint([
    Sketcher.Constraint("Diameter", 0, 10.0),
    Sketcher.Constraint("DistanceY", -1, 1, 0, 3, 9.5),
    Sketcher.Constraint("DistanceX", -1, 1, 0, 3, 28.178571),
])
pad5 = body.newObject("PartDesign::Pad", "Pad004")
pad5.Profile = sketch8
pad5.Length = 11

doc.recompute()
